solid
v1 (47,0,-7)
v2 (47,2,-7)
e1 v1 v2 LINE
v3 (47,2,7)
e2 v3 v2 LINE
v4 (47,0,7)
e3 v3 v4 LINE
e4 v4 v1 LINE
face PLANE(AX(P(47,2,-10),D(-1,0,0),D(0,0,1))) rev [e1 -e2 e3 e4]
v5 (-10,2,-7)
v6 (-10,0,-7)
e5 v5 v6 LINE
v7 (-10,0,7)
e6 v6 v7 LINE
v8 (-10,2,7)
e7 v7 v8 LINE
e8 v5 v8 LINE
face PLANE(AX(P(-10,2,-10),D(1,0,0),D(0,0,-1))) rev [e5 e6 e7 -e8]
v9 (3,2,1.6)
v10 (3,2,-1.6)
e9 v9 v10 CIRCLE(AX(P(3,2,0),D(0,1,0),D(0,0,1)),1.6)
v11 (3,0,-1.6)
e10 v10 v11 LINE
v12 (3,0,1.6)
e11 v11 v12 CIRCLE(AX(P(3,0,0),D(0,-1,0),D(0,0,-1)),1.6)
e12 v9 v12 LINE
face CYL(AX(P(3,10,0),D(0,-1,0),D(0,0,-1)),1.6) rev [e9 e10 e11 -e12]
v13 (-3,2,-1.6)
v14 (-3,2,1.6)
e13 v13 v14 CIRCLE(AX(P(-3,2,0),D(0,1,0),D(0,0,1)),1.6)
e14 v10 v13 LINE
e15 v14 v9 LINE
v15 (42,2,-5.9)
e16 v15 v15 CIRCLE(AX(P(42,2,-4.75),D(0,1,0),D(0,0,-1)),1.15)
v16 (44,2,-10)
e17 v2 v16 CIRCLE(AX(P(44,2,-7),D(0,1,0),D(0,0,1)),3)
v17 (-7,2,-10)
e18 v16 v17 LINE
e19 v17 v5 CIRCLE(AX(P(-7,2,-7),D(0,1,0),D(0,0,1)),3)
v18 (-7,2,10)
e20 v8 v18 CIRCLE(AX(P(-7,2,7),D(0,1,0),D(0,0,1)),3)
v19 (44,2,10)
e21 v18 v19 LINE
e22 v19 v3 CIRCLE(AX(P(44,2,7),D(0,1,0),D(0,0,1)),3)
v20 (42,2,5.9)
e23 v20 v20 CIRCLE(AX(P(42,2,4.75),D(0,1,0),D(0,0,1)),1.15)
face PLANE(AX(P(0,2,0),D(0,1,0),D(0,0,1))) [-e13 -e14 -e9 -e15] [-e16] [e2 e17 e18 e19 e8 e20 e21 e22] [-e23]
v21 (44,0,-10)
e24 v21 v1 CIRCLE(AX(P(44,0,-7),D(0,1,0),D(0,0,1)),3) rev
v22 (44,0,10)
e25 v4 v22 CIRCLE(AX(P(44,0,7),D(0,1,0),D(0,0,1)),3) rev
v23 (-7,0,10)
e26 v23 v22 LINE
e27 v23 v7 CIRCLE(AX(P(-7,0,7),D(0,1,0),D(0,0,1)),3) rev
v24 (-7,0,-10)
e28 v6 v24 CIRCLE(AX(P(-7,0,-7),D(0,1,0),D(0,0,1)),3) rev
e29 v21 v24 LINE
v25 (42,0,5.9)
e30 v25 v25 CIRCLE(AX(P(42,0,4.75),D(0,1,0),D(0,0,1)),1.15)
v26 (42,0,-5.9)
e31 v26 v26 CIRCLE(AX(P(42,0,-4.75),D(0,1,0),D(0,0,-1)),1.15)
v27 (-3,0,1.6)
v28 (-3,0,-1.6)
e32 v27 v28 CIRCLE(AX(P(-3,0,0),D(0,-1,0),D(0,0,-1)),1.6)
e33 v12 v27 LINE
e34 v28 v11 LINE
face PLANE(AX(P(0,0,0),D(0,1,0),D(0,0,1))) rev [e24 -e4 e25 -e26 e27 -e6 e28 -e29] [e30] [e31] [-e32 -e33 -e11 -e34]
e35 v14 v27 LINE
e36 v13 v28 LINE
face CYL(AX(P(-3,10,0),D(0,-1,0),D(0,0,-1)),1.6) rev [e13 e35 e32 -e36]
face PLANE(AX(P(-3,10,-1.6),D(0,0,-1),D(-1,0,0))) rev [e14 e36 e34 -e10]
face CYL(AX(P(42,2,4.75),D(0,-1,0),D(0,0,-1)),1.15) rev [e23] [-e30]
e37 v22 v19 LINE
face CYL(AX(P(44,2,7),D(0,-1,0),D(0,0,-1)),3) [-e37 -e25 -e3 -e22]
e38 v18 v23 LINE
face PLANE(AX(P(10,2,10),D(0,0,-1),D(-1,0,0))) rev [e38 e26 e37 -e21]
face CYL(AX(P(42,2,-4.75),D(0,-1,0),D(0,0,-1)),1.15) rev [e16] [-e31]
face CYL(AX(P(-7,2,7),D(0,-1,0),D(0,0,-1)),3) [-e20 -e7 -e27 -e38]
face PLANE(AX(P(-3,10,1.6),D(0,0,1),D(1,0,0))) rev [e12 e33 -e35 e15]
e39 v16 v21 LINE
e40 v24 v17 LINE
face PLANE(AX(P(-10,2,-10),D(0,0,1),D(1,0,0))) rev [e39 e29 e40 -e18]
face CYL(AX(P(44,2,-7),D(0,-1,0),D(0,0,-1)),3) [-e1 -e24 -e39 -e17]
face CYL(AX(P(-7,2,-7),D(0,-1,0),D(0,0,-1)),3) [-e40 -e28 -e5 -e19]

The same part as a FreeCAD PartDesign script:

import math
import FreeCAD as App
import Part
import Sketcher
from FreeCAD import Vector


def edges_at(feature, points):
    """Names of the edges that pass closest to the given points."""
    edges = feature.Shape.Edges
    near = lambda p: min(range(len(edges)), key=lambda i: edges[i].distToShape(Part.Vertex(*p))[0])
    return sorted({f"Edge{near(p) + 1}" for p in points})

doc = App.newDocument("Part")
params = doc.addObject("Spreadsheet::Sheet", "Params")
for row, (alias, value) in enumerate([
    ("sketch1_diameter", "2.3 mm"),
    ("sketch1_diameter2", "3.2 mm"),
    ("sketch1_width", "57 mm"),
    ("sketch1_height", "20 mm"),
    ("pad1_length", "2 mm"),
    ("fillet_radius", "3 mm"),
    ("sketch2_radius", "1.6 mm"),
    ("sketch2_width", "6 mm"),
    ("pocket1_length", "10 mm"),
], start=1):
    params.set(f"A{row}", alias)
    params.set(f"B{row}", "=" + value)
    params.setAlias(f"B{row}", alias)

body = doc.addObject("PartDesign::Body", "Body")

sketch1 = body.newObject("Sketcher::SketchObject", "Sketch")
sketch1.AttachmentSupport = (doc.getObject("XZ_Plane"), [""])
sketch1.MapMode = "FlatFace"
sketch1.addGeometry([
    Part.LineSegment(Vector(47, -10, 0), Vector(-10, -10, 0)),
    Part.LineSegment(Vector(-10, -10, 0), Vector(-10, 10, 0)),
    Part.LineSegment(Vector(-10, 10, 0), Vector(47, 10, 0)),
    Part.LineSegment(Vector(47, 10, 0), Vector(47, -10, 0)),
    Part.Circle(Vector(42, 4.8, 0), Vector(0, 0, 1), 1.1),
    Part.Circle(Vector(42, -4.8, 0), Vector(0, 0, 1), 1.1),
    Part.Circle(Vector(0, 0, 0), Vector(0, 0, 1), 1.6),
], False)
sketch1.addConstraint([
    Sketcher.Constraint("Coincident", 0, 2, 1, 1),
    Sketcher.Constraint("Coincident", 1, 2, 2, 1),
    Sketcher.Constraint("Coincident", 2, 2, 3, 1),
    Sketcher.Constraint("Coincident", 3, 2, 0, 1),
    Sketcher.Constraint("Horizontal", 0),
    Sketcher.Constraint("Vertical", 1),
    Sketcher.Constraint("Horizontal", 2),
    Sketcher.Constraint("Vertical", 3),
    Sketcher.Constraint("Coincident", 6, 3, -1, 1),
    Sketcher.Constraint("Equal", 4, 5),
    Sketcher.Constraint("Symmetric", 4, 3, 5, 3, -1),
    Sketcher.Constraint("Diameter", 4, 2.3),
    Sketcher.Constraint("Diameter", 6, 3.2),
    Sketcher.Constraint("DistanceX", 0, 2, 0, 1, 57.0),
    Sketcher.Constraint("DistanceY", 1, 1, 1, 2, 20.0),
    Sketcher.Constraint("DistanceX", -1, 1, 4, 3, 42.0),
    Sketcher.Constraint("DistanceX", 0, 2, -1, 1, 10.0),
    Sketcher.Constraint("DistanceY", 0, 2, -1, 1, 10.0),
    Sketcher.Constraint("DistanceY", 5, 3, 4, 3, 9.5),
])
sketch1.setExpression("Constraints[11]", "Params.sketch1_diameter")
sketch1.setExpression("Constraints[12]", "Params.sketch1_diameter2")
sketch1.setExpression("Constraints[13]", "Params.sketch1_width")
sketch1.setExpression("Constraints[14]", "Params.sketch1_height")
pad1 = body.newObject("PartDesign::Pad", "Pad")
pad1.Profile = sketch1
pad1.setExpression("Length", "Params.pad1_length")
pad1.Reversed = True
doc.recompute()

fillet = body.newObject("PartDesign::Fillet", "Fillet")
fillet.Base = (pad1, edges_at(pad1, [
    (-10, 1, -10),
    (47, 1, -10),
    (47, 1, 10),
    (-10, 1, 10),
]))
fillet.setExpression("Radius", "Params.fillet_radius")

sketch2 = body.newObject("Sketcher::SketchObject", "Sketch001")
sketch2.AttachmentSupport = (doc.getObject("XZ_Plane"), [""])
sketch2.MapMode = "FlatFace"
sketch2.addGeometry([
    Part.LineSegment(Vector(3, 1.6, 0), Vector(-3, 1.6, 0)),
    Part.ArcOfCircle(Part.Circle(Vector(-3, 0, 0), Vector(0, 0, 1), 1.6), math.radians(90), math.radians(270)),
    Part.LineSegment(Vector(-3, -1.6, 0), Vector(3, -1.6, 0)),
    Part.ArcOfCircle(Part.Circle(Vector(3, 0, 0), Vector(0, 0, 1), 1.6), math.radians(-90), math.radians(90)),
], False)
sketch2.addConstraint([
    Sketcher.Constraint("Tangent", 0, 2, 1, 1),
    Sketcher.Constraint("Tangent", 1, 2, 2, 1),
    Sketcher.Constraint("Tangent", 2, 2, 3, 1),
    Sketcher.Constraint("Tangent", 3, 2, 0, 1),
    Sketcher.Constraint("Horizontal", 0),
    Sketcher.Constraint("Horizontal", 2),
    Sketcher.Constraint("Symmetric", 1, 3, 3, 3, -1, 1),
    Sketcher.Constraint("Radius", 1, 1.6),
    Sketcher.Constraint("DistanceX", 0, 2, 0, 1, 6.0),
])
sketch2.setExpression("Constraints[7]", "Params.sketch2_radius")
sketch2.setExpression("Constraints[8]", "Params.sketch2_width")
pocket1 = body.newObject("PartDesign::Pocket", "Pocket")
pocket1.Profile = sketch2
pocket1.setExpression("Length", "Params.pocket1_length")

doc.recompute()
